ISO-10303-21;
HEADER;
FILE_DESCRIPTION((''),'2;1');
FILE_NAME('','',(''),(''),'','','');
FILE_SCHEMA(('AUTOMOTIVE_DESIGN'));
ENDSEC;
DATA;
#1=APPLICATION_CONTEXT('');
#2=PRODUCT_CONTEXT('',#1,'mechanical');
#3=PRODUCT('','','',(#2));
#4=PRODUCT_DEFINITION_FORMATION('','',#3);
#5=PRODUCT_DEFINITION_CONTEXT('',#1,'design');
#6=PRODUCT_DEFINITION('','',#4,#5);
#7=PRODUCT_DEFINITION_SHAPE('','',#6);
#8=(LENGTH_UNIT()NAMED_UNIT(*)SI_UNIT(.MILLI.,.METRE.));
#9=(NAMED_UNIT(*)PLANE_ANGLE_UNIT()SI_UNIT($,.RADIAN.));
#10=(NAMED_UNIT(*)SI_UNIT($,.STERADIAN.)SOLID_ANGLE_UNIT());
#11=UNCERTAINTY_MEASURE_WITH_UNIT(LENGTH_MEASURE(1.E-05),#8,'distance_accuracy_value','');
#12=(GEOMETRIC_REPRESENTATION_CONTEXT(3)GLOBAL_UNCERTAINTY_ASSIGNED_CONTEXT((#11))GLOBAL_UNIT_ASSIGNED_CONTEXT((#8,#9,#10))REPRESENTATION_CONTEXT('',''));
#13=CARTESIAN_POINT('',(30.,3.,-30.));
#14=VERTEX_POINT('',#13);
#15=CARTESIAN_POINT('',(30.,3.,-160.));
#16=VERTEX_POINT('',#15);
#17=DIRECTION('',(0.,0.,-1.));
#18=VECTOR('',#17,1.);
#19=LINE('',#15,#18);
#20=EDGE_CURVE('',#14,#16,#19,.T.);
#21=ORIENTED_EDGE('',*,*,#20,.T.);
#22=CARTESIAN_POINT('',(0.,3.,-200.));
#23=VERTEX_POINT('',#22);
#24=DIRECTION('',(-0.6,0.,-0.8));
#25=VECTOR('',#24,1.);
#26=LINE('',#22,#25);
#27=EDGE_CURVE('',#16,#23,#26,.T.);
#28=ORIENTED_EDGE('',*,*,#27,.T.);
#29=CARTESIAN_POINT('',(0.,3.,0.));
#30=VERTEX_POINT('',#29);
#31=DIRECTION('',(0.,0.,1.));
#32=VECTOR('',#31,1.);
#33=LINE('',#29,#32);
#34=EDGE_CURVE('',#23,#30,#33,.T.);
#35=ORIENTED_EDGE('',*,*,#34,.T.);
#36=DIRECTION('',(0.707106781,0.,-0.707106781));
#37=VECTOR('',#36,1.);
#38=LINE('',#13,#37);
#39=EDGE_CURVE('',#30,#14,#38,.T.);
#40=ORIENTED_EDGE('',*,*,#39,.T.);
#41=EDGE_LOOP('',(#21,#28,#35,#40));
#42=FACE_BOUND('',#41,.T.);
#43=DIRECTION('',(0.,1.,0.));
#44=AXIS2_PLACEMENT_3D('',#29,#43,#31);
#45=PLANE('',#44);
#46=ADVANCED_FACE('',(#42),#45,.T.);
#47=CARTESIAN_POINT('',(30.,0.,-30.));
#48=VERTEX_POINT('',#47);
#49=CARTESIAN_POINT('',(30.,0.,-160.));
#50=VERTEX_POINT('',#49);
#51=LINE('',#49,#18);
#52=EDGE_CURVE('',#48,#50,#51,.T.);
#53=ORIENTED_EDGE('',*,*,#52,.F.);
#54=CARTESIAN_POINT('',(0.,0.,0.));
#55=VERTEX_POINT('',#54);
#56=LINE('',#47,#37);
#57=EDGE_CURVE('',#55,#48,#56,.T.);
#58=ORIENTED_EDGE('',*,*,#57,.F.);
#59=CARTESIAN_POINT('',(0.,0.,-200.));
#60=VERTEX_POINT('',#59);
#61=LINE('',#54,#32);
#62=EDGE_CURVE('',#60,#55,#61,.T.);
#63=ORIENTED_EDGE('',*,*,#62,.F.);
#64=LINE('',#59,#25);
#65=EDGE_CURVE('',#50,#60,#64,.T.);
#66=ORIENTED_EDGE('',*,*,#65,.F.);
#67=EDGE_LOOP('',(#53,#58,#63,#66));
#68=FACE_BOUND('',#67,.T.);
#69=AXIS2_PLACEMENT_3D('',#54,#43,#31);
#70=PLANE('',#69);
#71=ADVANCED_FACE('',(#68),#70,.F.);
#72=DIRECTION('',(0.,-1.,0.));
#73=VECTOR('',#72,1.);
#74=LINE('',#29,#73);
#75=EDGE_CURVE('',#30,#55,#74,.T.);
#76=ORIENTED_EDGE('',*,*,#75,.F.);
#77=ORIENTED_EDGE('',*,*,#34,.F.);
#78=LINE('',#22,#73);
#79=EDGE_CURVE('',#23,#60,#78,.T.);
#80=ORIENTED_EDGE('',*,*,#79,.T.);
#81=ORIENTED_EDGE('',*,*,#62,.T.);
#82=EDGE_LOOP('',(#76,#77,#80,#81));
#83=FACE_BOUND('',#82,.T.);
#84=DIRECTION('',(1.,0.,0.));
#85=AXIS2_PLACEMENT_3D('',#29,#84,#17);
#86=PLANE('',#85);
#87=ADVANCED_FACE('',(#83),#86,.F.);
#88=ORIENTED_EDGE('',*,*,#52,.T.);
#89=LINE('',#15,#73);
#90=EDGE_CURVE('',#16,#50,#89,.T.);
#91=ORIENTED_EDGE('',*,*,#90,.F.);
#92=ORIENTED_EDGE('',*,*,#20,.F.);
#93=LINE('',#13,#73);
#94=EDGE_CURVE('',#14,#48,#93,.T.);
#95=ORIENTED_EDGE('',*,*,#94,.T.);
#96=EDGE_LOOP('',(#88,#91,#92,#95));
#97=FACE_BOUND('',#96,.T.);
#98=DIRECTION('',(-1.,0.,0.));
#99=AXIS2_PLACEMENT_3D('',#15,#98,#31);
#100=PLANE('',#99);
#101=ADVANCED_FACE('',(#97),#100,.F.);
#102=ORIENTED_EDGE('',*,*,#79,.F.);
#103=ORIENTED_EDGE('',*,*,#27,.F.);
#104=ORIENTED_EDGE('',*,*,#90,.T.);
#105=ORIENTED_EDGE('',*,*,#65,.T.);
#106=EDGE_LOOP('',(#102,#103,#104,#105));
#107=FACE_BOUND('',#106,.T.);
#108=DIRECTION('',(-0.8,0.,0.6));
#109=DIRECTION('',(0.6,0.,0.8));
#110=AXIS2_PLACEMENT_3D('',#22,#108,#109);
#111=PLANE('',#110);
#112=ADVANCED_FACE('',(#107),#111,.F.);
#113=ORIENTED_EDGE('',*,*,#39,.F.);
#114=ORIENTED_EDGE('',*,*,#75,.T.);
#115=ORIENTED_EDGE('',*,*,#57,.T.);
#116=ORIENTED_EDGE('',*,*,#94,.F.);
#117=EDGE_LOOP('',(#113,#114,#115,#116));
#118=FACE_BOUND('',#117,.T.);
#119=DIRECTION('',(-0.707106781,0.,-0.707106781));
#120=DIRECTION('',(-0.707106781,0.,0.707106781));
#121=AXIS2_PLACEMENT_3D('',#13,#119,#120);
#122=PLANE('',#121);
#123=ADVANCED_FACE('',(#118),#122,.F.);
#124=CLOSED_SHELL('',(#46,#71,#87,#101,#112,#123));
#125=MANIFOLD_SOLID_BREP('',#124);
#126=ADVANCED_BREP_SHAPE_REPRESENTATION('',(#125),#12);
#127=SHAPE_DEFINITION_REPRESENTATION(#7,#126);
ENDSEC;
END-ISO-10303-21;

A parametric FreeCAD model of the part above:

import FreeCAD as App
import Part
import Sketcher

V = App.Vector
Q = App.Units.Quantity

doc = App.newDocument("Part")
body = doc.addObject("PartDesign::Body", "Body")

# Sketch on XZ plane
sketch1 = doc.addObject("Sketcher::SketchObject", "Sketch")
body.addObject(sketch1)
sketch1.AttachmentSupport = (doc.XZ_Plane, [""])
sketch1.MapMode = "FlatFace"
sketch1.addGeometry([
    Part.LineSegment(V(0, -200, 0), V(0, 0, 0)),
    Part.LineSegment(V(0, 0, 0), V(30, -30, 0)),
    Part.LineSegment(V(30, -30, 0), V(30, -160, 0)),
    Part.LineSegment(V(30, -160, 0), V(0, -200, 0)),
], False)
sketch1.addConstraint([
    Sketcher.Constraint("Coincident", 0, 2, 1, 1),
    Sketcher.Constraint("Coincident", 1, 2, 2, 1),
    Sketcher.Constraint("Coincident", 2, 2, 3, 1),
    Sketcher.Constraint("Coincident", 3, 2, 0, 1),
    Sketcher.Constraint("Vertical", 0),
    Sketcher.Constraint("Vertical", 2),
    Sketcher.Constraint("Coincident", 0, 2, -1, 1),
    Sketcher.Constraint("DistanceY", 0, 1, 0, 2, 200.0),
    Sketcher.Constraint("DistanceY", 2, 2, 2, 1, 130.0),
    Sketcher.Constraint("Angle", 1, Q("-45 deg")),
    Sketcher.Constraint("Distance", 3, 50.0),
])
pad1 = doc.addObject("PartDesign::Pad", "Pad")
body.addObject(pad1)
pad1.Profile = sketch1
pad1.Length = 3
pad1.Reversed = True

doc.recompute()
